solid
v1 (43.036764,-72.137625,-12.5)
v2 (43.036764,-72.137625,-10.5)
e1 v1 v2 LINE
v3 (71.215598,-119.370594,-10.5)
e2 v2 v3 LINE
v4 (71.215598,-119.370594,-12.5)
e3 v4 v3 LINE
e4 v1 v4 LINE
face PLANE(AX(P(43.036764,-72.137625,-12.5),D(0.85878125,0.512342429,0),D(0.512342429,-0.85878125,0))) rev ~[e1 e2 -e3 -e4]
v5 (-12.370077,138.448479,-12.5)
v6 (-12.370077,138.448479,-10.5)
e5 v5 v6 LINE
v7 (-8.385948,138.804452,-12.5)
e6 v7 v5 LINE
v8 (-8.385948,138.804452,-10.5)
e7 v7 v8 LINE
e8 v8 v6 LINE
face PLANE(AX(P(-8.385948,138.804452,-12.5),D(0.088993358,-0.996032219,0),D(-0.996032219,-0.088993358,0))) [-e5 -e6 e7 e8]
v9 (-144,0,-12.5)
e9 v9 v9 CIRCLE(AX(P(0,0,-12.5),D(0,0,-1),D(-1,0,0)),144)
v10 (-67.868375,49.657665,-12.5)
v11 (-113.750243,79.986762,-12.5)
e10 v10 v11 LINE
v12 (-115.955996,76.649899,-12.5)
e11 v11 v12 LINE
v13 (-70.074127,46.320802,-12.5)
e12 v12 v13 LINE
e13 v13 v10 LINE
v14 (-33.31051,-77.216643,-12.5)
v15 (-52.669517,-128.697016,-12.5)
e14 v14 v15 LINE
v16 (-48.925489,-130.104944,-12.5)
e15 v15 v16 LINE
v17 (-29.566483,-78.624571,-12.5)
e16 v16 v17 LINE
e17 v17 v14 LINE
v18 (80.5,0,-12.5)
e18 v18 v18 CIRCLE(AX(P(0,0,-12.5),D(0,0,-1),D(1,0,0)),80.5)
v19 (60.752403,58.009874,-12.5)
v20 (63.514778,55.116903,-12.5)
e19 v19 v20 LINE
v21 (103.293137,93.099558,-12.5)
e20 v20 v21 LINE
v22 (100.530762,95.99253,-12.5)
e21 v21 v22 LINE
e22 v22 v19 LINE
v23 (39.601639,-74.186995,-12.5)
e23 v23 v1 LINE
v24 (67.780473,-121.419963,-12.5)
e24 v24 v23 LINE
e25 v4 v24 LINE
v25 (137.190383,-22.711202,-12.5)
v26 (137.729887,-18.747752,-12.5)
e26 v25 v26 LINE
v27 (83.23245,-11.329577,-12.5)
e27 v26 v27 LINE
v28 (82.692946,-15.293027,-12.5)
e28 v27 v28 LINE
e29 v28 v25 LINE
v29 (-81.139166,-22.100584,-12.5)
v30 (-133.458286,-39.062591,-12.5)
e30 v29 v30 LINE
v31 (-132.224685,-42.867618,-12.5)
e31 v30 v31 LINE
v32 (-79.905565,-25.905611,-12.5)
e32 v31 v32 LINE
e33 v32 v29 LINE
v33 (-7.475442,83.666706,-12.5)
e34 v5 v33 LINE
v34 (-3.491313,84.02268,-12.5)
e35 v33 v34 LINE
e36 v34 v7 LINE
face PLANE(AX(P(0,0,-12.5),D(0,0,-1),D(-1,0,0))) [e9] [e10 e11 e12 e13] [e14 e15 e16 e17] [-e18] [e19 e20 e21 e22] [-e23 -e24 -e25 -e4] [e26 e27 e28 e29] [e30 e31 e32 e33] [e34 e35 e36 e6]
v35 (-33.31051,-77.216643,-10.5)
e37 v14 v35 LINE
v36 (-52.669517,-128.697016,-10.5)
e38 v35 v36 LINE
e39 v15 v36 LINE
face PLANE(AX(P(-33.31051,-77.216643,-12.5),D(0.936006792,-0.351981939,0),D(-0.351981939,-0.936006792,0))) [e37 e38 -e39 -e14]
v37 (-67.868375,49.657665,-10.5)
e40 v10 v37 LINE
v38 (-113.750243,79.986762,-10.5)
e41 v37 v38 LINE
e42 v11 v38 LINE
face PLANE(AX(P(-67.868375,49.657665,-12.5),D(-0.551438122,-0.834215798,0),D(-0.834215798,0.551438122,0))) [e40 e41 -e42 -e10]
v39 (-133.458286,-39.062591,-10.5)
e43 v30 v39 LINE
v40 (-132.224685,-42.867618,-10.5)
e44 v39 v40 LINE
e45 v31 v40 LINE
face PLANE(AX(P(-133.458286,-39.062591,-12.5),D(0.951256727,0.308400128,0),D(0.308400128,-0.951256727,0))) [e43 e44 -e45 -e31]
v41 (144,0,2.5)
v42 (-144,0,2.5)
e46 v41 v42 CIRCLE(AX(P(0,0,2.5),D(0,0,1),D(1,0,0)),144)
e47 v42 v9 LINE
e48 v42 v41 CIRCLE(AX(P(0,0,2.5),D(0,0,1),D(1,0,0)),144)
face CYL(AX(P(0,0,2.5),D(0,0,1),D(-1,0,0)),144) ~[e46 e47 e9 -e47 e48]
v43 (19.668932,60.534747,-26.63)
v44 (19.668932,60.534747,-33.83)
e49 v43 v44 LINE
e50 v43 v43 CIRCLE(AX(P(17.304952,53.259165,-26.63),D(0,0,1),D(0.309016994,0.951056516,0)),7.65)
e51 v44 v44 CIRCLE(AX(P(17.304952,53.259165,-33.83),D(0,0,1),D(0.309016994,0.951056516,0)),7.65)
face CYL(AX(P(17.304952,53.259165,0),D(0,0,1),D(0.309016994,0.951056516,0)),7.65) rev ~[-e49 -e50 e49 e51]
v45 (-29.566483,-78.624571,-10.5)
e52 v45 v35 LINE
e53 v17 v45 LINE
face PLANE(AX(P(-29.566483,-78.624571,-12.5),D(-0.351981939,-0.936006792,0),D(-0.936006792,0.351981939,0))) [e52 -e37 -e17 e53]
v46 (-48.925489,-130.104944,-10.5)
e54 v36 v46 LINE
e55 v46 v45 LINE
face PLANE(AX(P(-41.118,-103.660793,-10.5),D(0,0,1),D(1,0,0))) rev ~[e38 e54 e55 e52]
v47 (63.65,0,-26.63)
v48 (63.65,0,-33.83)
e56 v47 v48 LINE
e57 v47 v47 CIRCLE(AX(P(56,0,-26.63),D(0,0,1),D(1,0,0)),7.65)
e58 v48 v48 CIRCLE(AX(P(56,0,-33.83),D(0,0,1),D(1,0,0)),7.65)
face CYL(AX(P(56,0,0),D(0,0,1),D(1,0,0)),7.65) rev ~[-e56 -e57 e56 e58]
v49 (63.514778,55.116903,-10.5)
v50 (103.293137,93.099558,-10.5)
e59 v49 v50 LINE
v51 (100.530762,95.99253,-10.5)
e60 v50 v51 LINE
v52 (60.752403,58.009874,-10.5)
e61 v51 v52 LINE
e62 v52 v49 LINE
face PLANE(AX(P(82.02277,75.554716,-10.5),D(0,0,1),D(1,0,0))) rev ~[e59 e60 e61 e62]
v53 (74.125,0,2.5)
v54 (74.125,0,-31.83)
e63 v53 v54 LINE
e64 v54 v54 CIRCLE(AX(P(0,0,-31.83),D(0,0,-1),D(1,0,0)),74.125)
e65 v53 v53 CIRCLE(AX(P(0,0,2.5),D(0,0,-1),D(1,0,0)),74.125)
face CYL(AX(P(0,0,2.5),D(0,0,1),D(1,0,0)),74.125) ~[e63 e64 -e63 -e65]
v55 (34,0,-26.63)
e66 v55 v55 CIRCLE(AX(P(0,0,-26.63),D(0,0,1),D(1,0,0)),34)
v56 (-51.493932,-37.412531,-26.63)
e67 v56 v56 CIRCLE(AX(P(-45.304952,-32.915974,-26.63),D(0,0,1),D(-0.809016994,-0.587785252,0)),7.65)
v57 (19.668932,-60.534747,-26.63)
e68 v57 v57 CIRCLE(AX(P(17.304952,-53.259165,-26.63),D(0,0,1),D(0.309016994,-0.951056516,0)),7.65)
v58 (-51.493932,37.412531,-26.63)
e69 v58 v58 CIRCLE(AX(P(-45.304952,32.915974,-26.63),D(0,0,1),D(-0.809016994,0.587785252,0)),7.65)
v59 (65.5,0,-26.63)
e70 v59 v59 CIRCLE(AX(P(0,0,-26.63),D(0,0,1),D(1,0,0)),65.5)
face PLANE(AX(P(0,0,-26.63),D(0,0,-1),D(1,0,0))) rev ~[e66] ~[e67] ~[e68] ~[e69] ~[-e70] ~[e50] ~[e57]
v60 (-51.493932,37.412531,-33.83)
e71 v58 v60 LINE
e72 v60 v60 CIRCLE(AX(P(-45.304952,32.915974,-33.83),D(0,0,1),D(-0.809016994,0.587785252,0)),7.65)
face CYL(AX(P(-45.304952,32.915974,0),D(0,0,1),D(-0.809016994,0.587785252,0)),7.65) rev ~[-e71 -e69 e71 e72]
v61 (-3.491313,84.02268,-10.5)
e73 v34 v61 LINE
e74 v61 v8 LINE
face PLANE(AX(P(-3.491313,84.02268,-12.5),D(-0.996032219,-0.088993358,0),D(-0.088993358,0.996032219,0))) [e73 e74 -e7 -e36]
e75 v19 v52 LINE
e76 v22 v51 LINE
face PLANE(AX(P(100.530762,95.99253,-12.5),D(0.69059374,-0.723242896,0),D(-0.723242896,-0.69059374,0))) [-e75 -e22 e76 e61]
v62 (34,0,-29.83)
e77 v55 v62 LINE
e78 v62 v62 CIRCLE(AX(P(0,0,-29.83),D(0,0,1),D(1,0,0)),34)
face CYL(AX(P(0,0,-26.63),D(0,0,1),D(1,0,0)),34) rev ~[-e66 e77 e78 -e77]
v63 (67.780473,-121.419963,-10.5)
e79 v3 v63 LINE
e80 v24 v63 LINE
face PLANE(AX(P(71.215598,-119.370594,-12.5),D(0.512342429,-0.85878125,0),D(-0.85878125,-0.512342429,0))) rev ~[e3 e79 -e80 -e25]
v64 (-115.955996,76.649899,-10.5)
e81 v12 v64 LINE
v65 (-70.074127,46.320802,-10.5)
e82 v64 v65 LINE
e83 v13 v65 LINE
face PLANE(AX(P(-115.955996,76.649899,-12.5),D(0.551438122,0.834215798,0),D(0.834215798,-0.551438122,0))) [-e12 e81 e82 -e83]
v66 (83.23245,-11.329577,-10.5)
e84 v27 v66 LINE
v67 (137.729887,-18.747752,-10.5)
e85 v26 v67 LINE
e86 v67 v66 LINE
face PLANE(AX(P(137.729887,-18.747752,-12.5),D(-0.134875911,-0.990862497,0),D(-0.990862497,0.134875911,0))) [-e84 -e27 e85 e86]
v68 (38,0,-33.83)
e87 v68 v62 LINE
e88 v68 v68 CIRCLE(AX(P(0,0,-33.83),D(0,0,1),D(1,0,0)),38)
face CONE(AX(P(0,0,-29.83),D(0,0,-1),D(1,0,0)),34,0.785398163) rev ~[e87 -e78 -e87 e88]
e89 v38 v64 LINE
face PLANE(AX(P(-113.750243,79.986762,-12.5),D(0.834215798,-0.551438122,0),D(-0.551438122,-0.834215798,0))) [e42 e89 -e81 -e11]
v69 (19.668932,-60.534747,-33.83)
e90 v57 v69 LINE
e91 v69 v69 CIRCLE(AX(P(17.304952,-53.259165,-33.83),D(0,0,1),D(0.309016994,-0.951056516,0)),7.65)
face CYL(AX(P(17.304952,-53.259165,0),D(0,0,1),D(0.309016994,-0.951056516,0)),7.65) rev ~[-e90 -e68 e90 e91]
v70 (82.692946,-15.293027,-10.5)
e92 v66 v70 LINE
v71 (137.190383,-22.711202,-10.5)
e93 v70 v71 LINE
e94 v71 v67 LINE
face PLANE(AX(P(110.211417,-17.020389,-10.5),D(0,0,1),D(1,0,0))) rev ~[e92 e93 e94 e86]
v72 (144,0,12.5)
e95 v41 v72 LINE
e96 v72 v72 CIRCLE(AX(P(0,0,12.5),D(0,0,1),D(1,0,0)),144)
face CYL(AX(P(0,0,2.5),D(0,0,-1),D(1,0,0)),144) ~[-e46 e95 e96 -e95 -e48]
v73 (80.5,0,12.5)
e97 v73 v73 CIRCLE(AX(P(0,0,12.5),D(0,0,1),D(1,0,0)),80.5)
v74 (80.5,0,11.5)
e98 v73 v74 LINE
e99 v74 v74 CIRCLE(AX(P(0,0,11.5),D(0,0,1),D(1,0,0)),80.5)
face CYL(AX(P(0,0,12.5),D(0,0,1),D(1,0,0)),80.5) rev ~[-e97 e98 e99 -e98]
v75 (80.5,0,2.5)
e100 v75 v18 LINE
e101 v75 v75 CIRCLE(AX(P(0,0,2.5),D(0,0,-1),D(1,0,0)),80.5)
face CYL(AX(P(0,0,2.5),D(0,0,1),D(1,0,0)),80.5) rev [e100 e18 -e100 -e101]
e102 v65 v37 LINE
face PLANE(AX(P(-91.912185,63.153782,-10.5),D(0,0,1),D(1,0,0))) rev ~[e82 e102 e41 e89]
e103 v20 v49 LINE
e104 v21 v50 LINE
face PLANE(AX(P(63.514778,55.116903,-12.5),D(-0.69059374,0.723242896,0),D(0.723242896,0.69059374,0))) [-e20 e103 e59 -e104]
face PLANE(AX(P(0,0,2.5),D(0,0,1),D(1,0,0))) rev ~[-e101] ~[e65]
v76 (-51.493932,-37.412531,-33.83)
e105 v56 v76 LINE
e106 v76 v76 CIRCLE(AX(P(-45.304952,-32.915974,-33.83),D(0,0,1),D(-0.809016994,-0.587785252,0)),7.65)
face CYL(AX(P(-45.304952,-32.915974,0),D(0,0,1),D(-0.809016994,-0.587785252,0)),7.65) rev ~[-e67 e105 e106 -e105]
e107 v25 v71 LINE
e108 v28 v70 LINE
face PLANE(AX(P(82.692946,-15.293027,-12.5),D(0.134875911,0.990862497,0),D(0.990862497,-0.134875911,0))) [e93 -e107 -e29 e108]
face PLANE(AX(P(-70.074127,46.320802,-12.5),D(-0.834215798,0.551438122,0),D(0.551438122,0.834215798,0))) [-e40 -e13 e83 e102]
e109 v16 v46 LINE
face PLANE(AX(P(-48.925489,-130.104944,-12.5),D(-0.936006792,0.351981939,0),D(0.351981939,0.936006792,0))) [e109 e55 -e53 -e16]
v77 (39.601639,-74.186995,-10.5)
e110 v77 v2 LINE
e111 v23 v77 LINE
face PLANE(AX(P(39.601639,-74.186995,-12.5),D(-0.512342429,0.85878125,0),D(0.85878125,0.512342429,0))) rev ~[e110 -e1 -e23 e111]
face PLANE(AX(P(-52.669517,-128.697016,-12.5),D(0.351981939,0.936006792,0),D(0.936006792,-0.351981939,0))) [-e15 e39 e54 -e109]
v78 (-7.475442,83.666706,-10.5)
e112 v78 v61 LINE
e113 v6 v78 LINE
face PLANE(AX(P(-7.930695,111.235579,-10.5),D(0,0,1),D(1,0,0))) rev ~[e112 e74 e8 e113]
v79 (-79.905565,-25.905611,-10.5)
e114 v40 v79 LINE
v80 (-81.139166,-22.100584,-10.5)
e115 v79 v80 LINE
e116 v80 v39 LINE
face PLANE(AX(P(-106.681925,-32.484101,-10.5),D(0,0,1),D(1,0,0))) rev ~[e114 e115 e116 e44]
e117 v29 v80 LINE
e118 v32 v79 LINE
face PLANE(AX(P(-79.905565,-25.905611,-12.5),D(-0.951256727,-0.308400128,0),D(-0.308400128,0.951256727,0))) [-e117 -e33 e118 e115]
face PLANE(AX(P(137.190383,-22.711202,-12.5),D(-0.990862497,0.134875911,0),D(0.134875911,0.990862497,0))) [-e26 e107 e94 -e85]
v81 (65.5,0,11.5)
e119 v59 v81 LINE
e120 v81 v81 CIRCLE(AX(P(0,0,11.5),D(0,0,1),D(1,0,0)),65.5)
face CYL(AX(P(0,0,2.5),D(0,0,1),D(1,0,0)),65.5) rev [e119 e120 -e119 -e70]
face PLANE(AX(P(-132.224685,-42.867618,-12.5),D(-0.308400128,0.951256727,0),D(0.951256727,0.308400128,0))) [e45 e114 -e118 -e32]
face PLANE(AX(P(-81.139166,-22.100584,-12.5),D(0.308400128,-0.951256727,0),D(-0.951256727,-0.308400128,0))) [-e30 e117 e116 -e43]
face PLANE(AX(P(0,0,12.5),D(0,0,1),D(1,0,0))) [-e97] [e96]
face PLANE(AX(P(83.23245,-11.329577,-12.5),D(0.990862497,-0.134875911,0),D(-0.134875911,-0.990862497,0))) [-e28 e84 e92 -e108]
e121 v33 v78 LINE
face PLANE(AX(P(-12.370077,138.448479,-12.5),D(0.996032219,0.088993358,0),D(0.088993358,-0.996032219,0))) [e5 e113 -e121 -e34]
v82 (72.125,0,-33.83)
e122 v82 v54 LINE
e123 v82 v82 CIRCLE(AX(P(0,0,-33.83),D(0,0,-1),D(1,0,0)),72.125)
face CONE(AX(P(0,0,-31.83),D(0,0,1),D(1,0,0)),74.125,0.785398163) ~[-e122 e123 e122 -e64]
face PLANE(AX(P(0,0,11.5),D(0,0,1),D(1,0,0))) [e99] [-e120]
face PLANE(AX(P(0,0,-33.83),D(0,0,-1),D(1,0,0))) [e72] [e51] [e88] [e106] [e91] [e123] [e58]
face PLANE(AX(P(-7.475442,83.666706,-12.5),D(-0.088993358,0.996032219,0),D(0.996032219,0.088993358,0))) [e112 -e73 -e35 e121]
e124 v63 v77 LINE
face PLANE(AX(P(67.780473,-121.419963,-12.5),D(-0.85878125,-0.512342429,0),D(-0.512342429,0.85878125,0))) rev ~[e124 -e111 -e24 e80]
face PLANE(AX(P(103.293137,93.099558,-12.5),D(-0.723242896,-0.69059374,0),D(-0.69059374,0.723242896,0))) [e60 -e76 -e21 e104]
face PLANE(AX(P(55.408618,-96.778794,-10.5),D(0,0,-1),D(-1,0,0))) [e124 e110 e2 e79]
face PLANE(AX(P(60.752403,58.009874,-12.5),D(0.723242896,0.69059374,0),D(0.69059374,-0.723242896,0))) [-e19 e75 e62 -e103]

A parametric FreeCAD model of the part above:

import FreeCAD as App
import Part
import Sketcher
Q = App.Units.Quantity


def edges_at(feature, points):
    """Names of the edges that pass closest to the given points."""
    edges = feature.Shape.Edges
    near = lambda p: min(range(len(edges)), key=lambda i: edges[i].distToShape(Part.Vertex(*p))[0])
    return sorted({f"Edge{near(p) + 1}" for p in points})


def add_polygon(sketch, points):
    """Adds a closed chain of lines whose ends are joined by coincident constraints."""
    first, n = sketch.GeometryCount, len(points)
    for a, b in zip(points, points[1:] + points[:1]):
        sketch.addGeometry(Part.LineSegment(App.Vector(*a, 0), App.Vector(*b, 0)), False)
    for i in range(n):
        sketch.addConstraint(Sketcher.Constraint("Coincident", first + i, 2, first + (i + 1) % n, 1))

doc = App.newDocument("Part")
body = doc.addObject("PartDesign::Body", "Body")

# Sketch on XY plane
sketch1 = body.newObject("Sketcher::SketchObject", "Sketch")
sketch1.AttachmentSupport = (doc.getObject("XY_Plane"), [""])
sketch1.MapMode = "FlatFace"
sketch1.AttachmentOffset = App.Placement(App.Vector(0, 0, 2.5), App.Rotation())
sketch1.addGeometry(Part.Circle(App.Vector(0, 0, 0), App.Vector(0, 0, 1), 144), False)
sketch1.addConstraint([
    Sketcher.Constraint("Coincident", 0, 3, -1, 1),
    Sketcher.Constraint("Diameter", 0, 288.0),
])
pad1 = body.newObject("PartDesign::Pad", "Pad")
pad1.Profile = sketch1
pad1.Length = 10

# Sketch on XY plane
sketch2 = body.newObject("Sketcher::SketchObject", "Sketch001")
sketch2.AttachmentSupport = (doc.getObject("XY_Plane"), [""])
sketch2.MapMode = "FlatFace"
sketch2.AttachmentOffset = App.Placement(App.Vector(0, 0, 12.5), App.Rotation())
sketch2.addGeometry(Part.Circle(App.Vector(0, 0, 0), App.Vector(0, 0, 1), 80), False)
sketch2.addConstraint([
    Sketcher.Constraint("Coincident", 0, 3, -1, 1),
    Sketcher.Constraint("Diameter", 0, 161.0),
])
pocket1 = body.newObject("PartDesign::Pocket", "Pocket")
pocket1.Profile = sketch2
pocket1.Length = 1

# Sketch on XY plane
sketch3 = body.newObject("Sketcher::SketchObject", "Sketch002")
sketch3.AttachmentSupport = (doc.getObject("XY_Plane"), [""])
sketch3.MapMode = "FlatFace"
sketch3.AttachmentOffset = App.Placement(App.Vector(0, 0, 11.5), App.Rotation())
sketch3.addGeometry(Part.Circle(App.Vector(0, 0, 0), App.Vector(0, 0, 1), 66), False)
sketch3.addConstraint([
    Sketcher.Constraint("Coincident", 0, 3, -1, 1),
    Sketcher.Constraint("Diameter", 0, 131.0),
])
pocket2 = body.newObject("PartDesign::Pocket", "Pocket001")
pocket2.Profile = sketch3
pocket2.Type = "ThroughAll"

# Sketch on XY plane
sketch4 = body.newObject("Sketcher::SketchObject", "Sketch003")
sketch4.AttachmentSupport = (doc.getObject("XY_Plane"), [""])
sketch4.MapMode = "FlatFace"
sketch4.AttachmentOffset = App.Placement(App.Vector(0, 0, 2.5), App.Rotation())
sketch4.addGeometry([
    Part.Circle(App.Vector(0, 0, 0), App.Vector(0, 0, 1), 74),
    Part.Circle(App.Vector(0, 0, 0), App.Vector(0, 0, 1), 66),
], False)
sketch4.addConstraint([
    Sketcher.Constraint("Coincident", 0, 3, -1, 1),
    Sketcher.Constraint("Coincident", 1, 3, -1, 1),
    Sketcher.Constraint("Diameter", 1, 131.0),
    Sketcher.Constraint("Diameter", 0, 148.25),
])
pad2 = body.newObject("PartDesign::Pad", "Pad001")
pad2.Profile = sketch4
pad2.Length = 36.33
pad2.Reversed = True

# Sketch on XY plane
sketch5 = body.newObject("Sketcher::SketchObject", "Sketch004")
sketch5.AttachmentSupport = (doc.getObject("XY_Plane"), [""])
sketch5.MapMode = "FlatFace"
sketch5.AttachmentOffset = App.Placement(App.Vector(0, 0, -26.63), App.Rotation())
sketch5.addGeometry(Part.Circle(App.Vector(0, 0, 0), App.Vector(0, 0, 1), 74), False)
sketch5.addConstraint([
    Sketcher.Constraint("Coincident", 0, 3, -1, 1),
    Sketcher.Constraint("Diameter", 0, 148.25),
])
pad3 = body.newObject("PartDesign::Pad", "Pad002")
pad3.Profile = sketch5
pad3.Length = 7.2
pad3.Reversed = True

# Sketch on XY plane
sketch6 = body.newObject("Sketcher::SketchObject", "Sketch005")
sketch6.AttachmentSupport = (doc.getObject("XY_Plane"), [""])
sketch6.MapMode = "FlatFace"
sketch6.AttachmentOffset = App.Placement(App.Vector(0, 0, -26.63), App.Rotation())
sketch6.addGeometry(Part.Circle(App.Vector(0, 0, 0), App.Vector(0, 0, 1), 34), False)
sketch6.addConstraint([
    Sketcher.Constraint("Coincident", 0, 3, -1, 1),
    Sketcher.Constraint("Diameter", 0, 68.0),
])
pocket3 = body.newObject("PartDesign::Pocket", "Pocket002")
pocket3.Profile = sketch6
pocket3.Length = 17.2

# Sketch on XY plane
sketch7 = body.newObject("Sketcher::SketchObject", "Sketch006")
sketch7.AttachmentSupport = (doc.getObject("XY_Plane"), [""])
sketch7.MapMode = "FlatFace"
sketch7.AttachmentOffset = App.Placement(App.Vector(0, 0, 2.5), App.Rotation())
sketch7.addGeometry([
    Part.Circle(App.Vector(0, 0, 0), App.Vector(0, 0, 1), 144),
    Part.Circle(App.Vector(0, 0, 0), App.Vector(0, 0, 1), 80),
], False)
sketch7.addConstraint([
    Sketcher.Constraint("Coincident", 0, 3, -1, 1),
    Sketcher.Constraint("Coincident", 1, 3, -1, 1),
    Sketcher.Constraint("Diameter", 0, 288.0),
    Sketcher.Constraint("Diameter", 1, 161.0),
])
pad4 = body.newObject("PartDesign::Pad", "Pad003")
pad4.Profile = sketch7
pad4.Length = 15
pad4.Reversed = True
doc.recompute()

chamfer = body.newObject("PartDesign::Chamfer", "Chamfer")
chamfer.Base = (pad4, edges_at(pad4, [(-34, 0, -33.83)]))
chamfer.Size = 4

# Sketch on XY plane
sketch8 = body.newObject("Sketcher::SketchObject", "Sketch007")
sketch8.AttachmentSupport = (doc.getObject("XY_Plane"), [""])
sketch8.MapMode = "FlatFace"
sketch8.addGeometry(Part.Circle(App.Vector(56, 0, 0), App.Vector(0, 0, 1), 8), False)
sketch8.addConstraint([
    Sketcher.Constraint("PointOnObject", 0, 3, -1),
    Sketcher.Constraint("Diameter", 0, 15.3),
    Sketcher.Constraint("DistanceX", -1, 1, 0, 3, 56.0),
])
pocket4 = body.newObject("PartDesign::Pocket", "Pocket003")
pocket4.Profile = sketch8
pocket4.Type = "ThroughAll"
doc.recompute()

polarpattern = body.newObject("PartDesign::PolarPattern", "PolarPattern")
polarpattern.Originals = [pocket4]
polarpattern.Axis = (doc.getObject("Z_Axis"), [""])
polarpattern.Angle = 360
polarpattern.Occurrences = 5
body.Tip = polarpattern
doc.recompute()

chamfer2 = body.newObject("PartDesign::Chamfer", "Chamfer001")
chamfer2.Base = (polarpattern, edges_at(polarpattern, [(-74.125, 0, -33.83)]))
chamfer2.Size = 2

# Sketch on XY plane
sketch9 = body.newObject("Sketcher::SketchObject", "Sketch008")
sketch9.AttachmentSupport = (doc.getObject("XY_Plane"), [""])
sketch9.MapMode = "FlatFace"
sketch9.AttachmentOffset = App.Placement(App.Vector(0, 0, -12.5), App.Rotation())
add_polygon(sketch9, [(43, -72.1), (71.2, -119.4), (67.8, -121.4), (39.6, -74.2)])  # lines 0-3
add_polygon(sketch9, [(137.2, -22.7), (82.7, -15.3), (83.2, -11.3), (137.7, -18.7)])  # lines 4-7
add_polygon(sketch9, [(103.3, 93.1), (63.5, 55.1), (60.8, 58), (100.5, 96)])  # lines 8-11
add_polygon(sketch9, [(-8.4, 138.8), (-3.5, 84), (-7.5, 83.7), (-12.4, 138.4)])  # lines 12-15
add_polygon(sketch9, [(-113.8, 80), (-67.9, 49.7), (-70.1, 46.3), (-116, 76.6)])  # lines 16-19
add_polygon(sketch9, [(-133.5, -39.1), (-81.1, -22.1), (-79.9, -25.9), (-132.2, -42.9)])  # lines 20-23
add_polygon(sketch9, [(-52.7, -128.7), (-33.3, -77.2), (-29.6, -78.6), (-48.9, -130.1)])  # lines 24-27
sketch9.addConstraint([
    Sketcher.Constraint("Perpendicular", 0, 1),
    Sketcher.Constraint("Perpendicular", 1, 2),
    Sketcher.Constraint("Perpendicular", 2, 3),
    Sketcher.Constraint("Perpendicular", 4, 5),
    Sketcher.Constraint("Perpendicular", 5, 6),
    Sketcher.Constraint("Perpendicular", 6, 7),
    Sketcher.Constraint("Perpendicular", 8, 9),
    Sketcher.Constraint("Perpendicular", 9, 10),
    Sketcher.Constraint("Perpendicular", 10, 11),
    Sketcher.Constraint("Perpendicular", 12, 13),
    Sketcher.Constraint("Perpendicular", 13, 14),
    Sketcher.Constraint("Perpendicular", 14, 15),
    Sketcher.Constraint("Perpendicular", 16, 17),
    Sketcher.Constraint("Perpendicular", 17, 18),
    Sketcher.Constraint("Perpendicular", 18, 19),
    Sketcher.Constraint("Perpendicular", 20, 21),
    Sketcher.Constraint("Perpendicular", 21, 22),
    Sketcher.Constraint("Perpendicular", 22, 23),
    Sketcher.Constraint("Perpendicular", 24, 25),
    Sketcher.Constraint("Perpendicular", 25, 26),
    Sketcher.Constraint("Perpendicular", 26, 27),
    Sketcher.Constraint("Equal", 2, 4),
    Sketcher.Constraint("Equal", 3, 5),
    Sketcher.Constraint("Equal", 6, 8),
    Sketcher.Constraint("Equal", 7, 9),
    Sketcher.Constraint("Equal", 10, 12),
    Sketcher.Constraint("Equal", 11, 13),
    Sketcher.Constraint("Equal", 14, 16),
    Sketcher.Constraint("Equal", 15, 17),
    Sketcher.Constraint("Equal", 18, 20),
    Sketcher.Constraint("Equal", 19, 21),
    Sketcher.Constraint("Equal", 22, 24),
    Sketcher.Constraint("Equal", 23, 25),
    Sketcher.Constraint("Distance", 0, 55.0),
    Sketcher.Constraint("Distance", 1, 4.0),
    Sketcher.Constraint("Angle", 0, Q("-59.180016 deg")),
    Sketcher.Constraint("DistanceY", 7, 2, -1, 1, 22.711202),
    Sketcher.Constraint("DistanceY", -1, 1, 18, 2, 76.649899),
    Sketcher.Constraint("DistanceY", 3, 2, 4, 2, 56.844599),
    Sketcher.Constraint("DistanceY", 4, 2, 9, 2, 73.302901),
    Sketcher.Constraint("DistanceY", 12, 2, 14, 2, 54.425799),
    Sketcher.Constraint("DistanceX", 19, 2, 13, 2, 106.274801),
    Sketcher.Constraint("DistanceX", 20, 2, 21, 2, 1.233601),
    Sketcher.Constraint("DistanceY", 26, 2, 24, 2, 52.888301),
    Sketcher.Constraint("DistanceX", -1, 1, 2, 2, 39.601639),
    Sketcher.Constraint("DistanceX", -1, 1, 5, 2, 83.23245),
    Sketcher.Constraint("DistanceY", 6, 2, -1, 1, 18.747752),
    Sketcher.Constraint("DistanceX", -1, 1, 8, 2, 63.514778),
    Sketcher.Constraint("DistanceY", -1, 1, 10, 2, 95.99253),
    Sketcher.Constraint("DistanceY", -1, 1, 12, 2, 84.02268),
    Sketcher.Constraint("DistanceY", 21, 2, -1, 1, 25.905611),
    Sketcher.Constraint("DistanceX", 24, 2, -1, 1, 33.31051),
    Sketcher.Constraint("DistanceY", 25, 2, -1, 1, 78.624571),
    Sketcher.Constraint("DistanceX", 12, 2, 8, 2, 67.006091),
    Sketcher.Constraint("DistanceY", 16, 2, 13, 2, 34.009041),
    Sketcher.Constraint("DistanceX", 20, 2, 17, 2, 11.065039),
])
pocket5 = body.newObject("PartDesign::Pocket", "Pocket004")
pocket5.Profile = sketch9
pocket5.Length = 2
pocket5.Reversed = True

doc.recompute()
